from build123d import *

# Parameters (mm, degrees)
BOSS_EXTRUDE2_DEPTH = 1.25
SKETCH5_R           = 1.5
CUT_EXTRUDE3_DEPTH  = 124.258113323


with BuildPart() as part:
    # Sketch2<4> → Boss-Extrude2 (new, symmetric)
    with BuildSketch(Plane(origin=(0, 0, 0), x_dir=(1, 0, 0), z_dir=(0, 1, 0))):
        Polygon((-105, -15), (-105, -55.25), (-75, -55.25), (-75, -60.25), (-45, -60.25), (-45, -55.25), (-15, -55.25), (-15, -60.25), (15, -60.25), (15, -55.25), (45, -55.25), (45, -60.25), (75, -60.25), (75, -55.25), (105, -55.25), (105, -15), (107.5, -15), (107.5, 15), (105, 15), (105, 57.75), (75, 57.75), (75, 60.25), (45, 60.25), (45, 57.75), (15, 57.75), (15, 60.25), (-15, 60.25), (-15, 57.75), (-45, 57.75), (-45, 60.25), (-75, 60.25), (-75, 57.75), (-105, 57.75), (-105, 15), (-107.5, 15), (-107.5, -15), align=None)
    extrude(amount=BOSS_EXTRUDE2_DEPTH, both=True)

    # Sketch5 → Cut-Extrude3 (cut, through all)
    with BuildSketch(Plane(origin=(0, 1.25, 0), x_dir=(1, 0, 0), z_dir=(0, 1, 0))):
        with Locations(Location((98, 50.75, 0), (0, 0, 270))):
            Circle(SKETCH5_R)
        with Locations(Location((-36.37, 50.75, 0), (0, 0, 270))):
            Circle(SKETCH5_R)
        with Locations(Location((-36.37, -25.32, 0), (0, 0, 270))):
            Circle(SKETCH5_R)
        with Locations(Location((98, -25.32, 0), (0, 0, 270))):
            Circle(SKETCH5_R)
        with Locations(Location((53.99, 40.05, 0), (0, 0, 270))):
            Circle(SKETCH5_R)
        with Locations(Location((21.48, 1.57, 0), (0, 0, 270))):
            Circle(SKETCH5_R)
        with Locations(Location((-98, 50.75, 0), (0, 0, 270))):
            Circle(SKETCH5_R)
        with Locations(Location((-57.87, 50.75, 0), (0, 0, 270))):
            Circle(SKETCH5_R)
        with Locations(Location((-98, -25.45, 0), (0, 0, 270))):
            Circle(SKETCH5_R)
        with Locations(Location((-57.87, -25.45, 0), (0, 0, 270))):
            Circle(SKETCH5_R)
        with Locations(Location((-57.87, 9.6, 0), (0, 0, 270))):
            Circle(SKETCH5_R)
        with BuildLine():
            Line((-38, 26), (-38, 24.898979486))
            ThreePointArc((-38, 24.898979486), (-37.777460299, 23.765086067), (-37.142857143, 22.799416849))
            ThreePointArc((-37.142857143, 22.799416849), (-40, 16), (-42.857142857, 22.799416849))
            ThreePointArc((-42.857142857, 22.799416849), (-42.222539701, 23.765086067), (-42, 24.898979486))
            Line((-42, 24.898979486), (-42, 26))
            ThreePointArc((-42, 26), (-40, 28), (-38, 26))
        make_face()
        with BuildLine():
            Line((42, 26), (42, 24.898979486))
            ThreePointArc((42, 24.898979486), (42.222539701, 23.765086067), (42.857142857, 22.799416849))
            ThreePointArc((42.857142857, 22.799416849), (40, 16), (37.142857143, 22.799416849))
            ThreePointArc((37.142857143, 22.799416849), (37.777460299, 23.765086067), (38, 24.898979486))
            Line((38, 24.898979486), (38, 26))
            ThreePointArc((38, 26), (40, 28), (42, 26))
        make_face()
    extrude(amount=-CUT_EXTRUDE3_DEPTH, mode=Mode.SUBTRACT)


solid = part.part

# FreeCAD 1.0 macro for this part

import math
import FreeCAD as App
import Part
import Sketcher

V = App.Vector
Q = App.Units.Quantity

doc = App.newDocument("Part")
params = doc.addObject("Spreadsheet::Sheet", "Params")
for row, (alias, value) in enumerate([
    ("sketch1_width", "30 mm"),
    ("sketch1_height", "5 mm"),
    ("sketch1_width2", "2.5 mm"),
    ("pad1_length", "2.5 mm"),
    ("sketch2_diameter", "3 mm"),
    ("sketch2_radius", "2 mm"),
    ("sketch2_radius2", "3 mm"),
    ("sketch2_radius3", "4 mm"),
], start=1):
    params.set(f"A{row}", alias)
    params.set(f"B{row}", "=" + value)
    params.setAlias(f"B{row}", alias)

body = doc.addObject("PartDesign::Body", "Body")

# Sketch on XZ plane
sketch1 = body.newObject("Sketcher::SketchObject", "Sketch")
sketch1.AttachmentSupport = (doc.getObject("XZ_Plane"), [""])
sketch1.MapMode = "FlatFace"
sketch1.addGeometry(Part.LineSegment(V(-105, 15, 0), V(-105, 55.2, 0)), False)
sketch1.addGeometry(Part.LineSegment(V(-105, 55.2, 0), V(-75, 55.2, 0)), False)
sketch1.addGeometry(Part.LineSegment(V(-75, 55.2, 0), V(-75, 60.2, 0)), False)
sketch1.addGeometry(Part.LineSegment(V(-75, 60.2, 0), V(-45, 60.2, 0)), False)
sketch1.addGeometry(Part.LineSegment(V(-45, 60.2, 0), V(-45, 55.2, 0)), False)
sketch1.addGeometry(Part.LineSegment(V(-45, 55.2, 0), V(-15, 55.2, 0)), False)
sketch1.addGeometry(Part.LineSegment(V(-15, 55.2, 0), V(-15, 60.2, 0)), False)
sketch1.addGeometry(Part.LineSegment(V(-15, 60.2, 0), V(15, 60.2, 0)), False)
sketch1.addGeometry(Part.LineSegment(V(15, 60.2, 0), V(15, 55.2, 0)), False)
sketch1.addGeometry(Part.LineSegment(V(15, 55.2, 0), V(45, 55.2, 0)), False)
sketch1.addGeometry(Part.LineSegment(V(45, 55.2, 0), V(45, 60.2, 0)), False)
sketch1.addGeometry(Part.LineSegment(V(45, 60.2, 0), V(75, 60.2, 0)), False)
sketch1.addGeometry(Part.LineSegment(V(75, 60.2, 0), V(75, 55.2, 0)), False)
sketch1.addGeometry(Part.LineSegment(V(75, 55.2, 0), V(105, 55.2, 0)), False)
sketch1.addGeometry(Part.LineSegment(V(105, 55.2, 0), V(105, 15, 0)), False)
sketch1.addGeometry(Part.LineSegment(V(105, 15, 0), V(107.5, 15, 0)), False)
sketch1.addGeometry(Part.LineSegment(V(107.5, 15, 0), V(107.5, -15, 0)), False)
sketch1.addGeometry(Part.LineSegment(V(107.5, -15, 0), V(105, -15, 0)), False)
sketch1.addGeometry(Part.LineSegment(V(105, -15, 0), V(105, -57.8, 0)), False)
sketch1.addGeometry(Part.LineSegment(V(105, -57.8, 0), V(75, -57.8, 0)), False)
sketch1.addGeometry(Part.LineSegment(V(75, -57.8, 0), V(75, -60.2, 0)), False)
sketch1.addGeometry(Part.LineSegment(V(75, -60.2, 0), V(45, -60.2, 0)), False)
sketch1.addGeometry(Part.LineSegment(V(45, -60.2, 0), V(45, -57.8, 0)), False)
sketch1.addGeometry(Part.LineSegment(V(45, -57.8, 0), V(15, -57.8, 0)), False)
sketch1.addGeometry(Part.LineSegment(V(15, -57.8, 0), V(15, -60.2, 0)), False)
sketch1.addGeometry(Part.LineSegment(V(15, -60.2, 0), V(-15, -60.2, 0)), False)
sketch1.addGeometry(Part.LineSegment(V(-15, -60.2, 0), V(-15, -57.8, 0)), False)
sketch1.addGeometry(Part.LineSegment(V(-15, -57.8, 0), V(-45, -57.8, 0)), False)
sketch1.addGeometry(Part.LineSegment(V(-45, -57.8, 0), V(-45, -60.2, 0)), False)
sketch1.addGeometry(Part.LineSegment(V(-45, -60.2, 0), V(-75, -60.2, 0)), False)
sketch1.addGeometry(Part.LineSegment(V(-75, -60.2, 0), V(-75, -57.8, 0)), False)
sketch1.addGeometry(Part.LineSegment(V(-75, -57.8, 0), V(-105, -57.8, 0)), False)
sketch1.addGeometry(Part.LineSegment(V(-105, -57.8, 0), V(-105, -15, 0)), False)
sketch1.addGeometry(Part.LineSegment(V(-105, -15, 0), V(-107.5, -15, 0)), False)
sketch1.addGeometry(Part.LineSegment(V(-107.5, -15, 0), V(-107.5, 15, 0)), False)
sketch1.addGeometry(Part.LineSegment(V(-107.5, 15, 0), V(-105, 15, 0)), False)
sketch1.addConstraint(Sketcher.Constraint("Coincident", 0, 2, 1, 1))
sketch1.addConstraint(Sketcher.Constraint("Coincident", 1, 2, 2, 1))
sketch1.addConstraint(Sketcher.Constraint("Coincident", 2, 2, 3, 1))
sketch1.addConstraint(Sketcher.Constraint("Coincident", 3, 2, 4, 1))
sketch1.addConstraint(Sketcher.Constraint("Coincident", 4, 2, 5, 1))
sketch1.addConstraint(Sketcher.Constraint("Coincident", 5, 2, 6, 1))
sketch1.addConstraint(Sketcher.Constraint("Coincident", 6, 2, 7, 1))
sketch1.addConstraint(Sketcher.Constraint("Coincident", 7, 2, 8, 1))
sketch1.addConstraint(Sketcher.Constraint("Coincident", 8, 2, 9, 1))
sketch1.addConstraint(Sketcher.Constraint("Coincident", 9, 2, 10, 1))
sketch1.addConstraint(Sketcher.Constraint("Coincident", 10, 2, 11, 1))
sketch1.addConstraint(Sketcher.Constraint("Coincident", 11, 2, 12, 1))
sketch1.addConstraint(Sketcher.Constraint("Coincident", 12, 2, 13, 1))
sketch1.addConstraint(Sketcher.Constraint("Coincident", 13, 2, 14, 1))
sketch1.addConstraint(Sketcher.Constraint("Coincident", 14, 2, 15, 1))
sketch1.addConstraint(Sketcher.Constraint("Coincident", 15, 2, 16, 1))
sketch1.addConstraint(Sketcher.Constraint("Coincident", 16, 2, 17, 1))
sketch1.addConstraint(Sketcher.Constraint("Coincident", 17, 2, 18, 1))
sketch1.addConstraint(Sketcher.Constraint("Coincident", 18, 2, 19, 1))
sketch1.addConstraint(Sketcher.Constraint("Coincident", 19, 2, 20, 1))
sketch1.addConstraint(Sketcher.Constraint("Coincident", 20, 2, 21, 1))
sketch1.addConstraint(Sketcher.Constraint("Coincident", 21, 2, 22, 1))
sketch1.addConstraint(Sketcher.Constraint("Coincident", 22, 2, 23, 1))
sketch1.addConstraint(Sketcher.Constraint("Coincident", 23, 2, 24, 1))
sketch1.addConstraint(Sketcher.Constraint("Coincident", 24, 2, 25, 1))
sketch1.addConstraint(Sketcher.Constraint("Coincident", 25, 2, 26, 1))
sketch1.addConstraint(Sketcher.Constraint("Coincident", 26, 2, 27, 1))
sketch1.addConstraint(Sketcher.Constraint("Coincident", 27, 2, 28, 1))
sketch1.addConstraint(Sketcher.Constraint("Coincident", 28, 2, 29, 1))
sketch1.addConstraint(Sketcher.Constraint("Coincident", 29, 2, 30, 1))
sketch1.addConstraint(Sketcher.Constraint("Coincident", 30, 2, 31, 1))
sketch1.addConstraint(Sketcher.Constraint("Coincident", 31, 2, 32, 1))
sketch1.addConstraint(Sketcher.Constraint("Coincident", 32, 2, 33, 1))
sketch1.addConstraint(Sketcher.Constraint("Coincident", 33, 2, 34, 1))
sketch1.addConstraint(Sketcher.Constraint("Coincident", 34, 2, 35, 1))
sketch1.addConstraint(Sketcher.Constraint("Coincident", 35, 2, 0, 1))
sketch1.addConstraint(Sketcher.Constraint("Vertical", 0))
sketch1.addConstraint(Sketcher.Constraint("Horizontal", 1))
sketch1.addConstraint(Sketcher.Constraint("Vertical", 2))
sketch1.addConstraint(Sketcher.Constraint("Horizontal", 3))
sketch1.addConstraint(Sketcher.Constraint("Vertical", 4))
sketch1.addConstraint(Sketcher.Constraint("Horizontal", 5))
sketch1.addConstraint(Sketcher.Constraint("Vertical", 6))
sketch1.addConstraint(Sketcher.Constraint("Horizontal", 7))
sketch1.addConstraint(Sketcher.Constraint("Vertical", 8))
sketch1.addConstraint(Sketcher.Constraint("Horizontal", 9))
sketch1.addConstraint(Sketcher.Constraint("Vertical", 10))
sketch1.addConstraint(Sketcher.Constraint("Horizontal", 11))
sketch1.addConstraint(Sketcher.Constraint("Vertical", 12))
sketch1.addConstraint(Sketcher.Constraint("Horizontal", 13))
sketch1.addConstraint(Sketcher.Constraint("Vertical", 14))
sketch1.addConstraint(Sketcher.Constraint("Horizontal", 15))
sketch1.addConstraint(Sketcher.Constraint("Vertical", 16))
sketch1.addConstraint(Sketcher.Constraint("Horizontal", 17))
sketch1.addConstraint(Sketcher.Constraint("Vertical", 18))
sketch1.addConstraint(Sketcher.Constraint("Horizontal", 19))
sketch1.addConstraint(Sketcher.Constraint("Vertical", 20))
sketch1.addConstraint(Sketcher.Constraint("Horizontal", 21))
sketch1.addConstraint(Sketcher.Constraint("Vertical", 22))
sketch1.addConstraint(Sketcher.Constraint("Horizontal", 23))
sketch1.addConstraint(Sketcher.Constraint("Vertical", 24))
sketch1.addConstraint(Sketcher.Constraint("Horizontal", 25))
sketch1.addConstraint(Sketcher.Constraint("Vertical", 26))
sketch1.addConstraint(Sketcher.Constraint("Horizontal", 27))
sketch1.addConstraint(Sketcher.Constraint("Vertical", 28))
sketch1.addConstraint(Sketcher.Constraint("Horizontal", 29))
sketch1.addConstraint(Sketcher.Constraint("Vertical", 30))
sketch1.addConstraint(Sketcher.Constraint("Horizontal", 31))
sketch1.addConstraint(Sketcher.Constraint("Vertical", 32))
sketch1.addConstraint(Sketcher.Constraint("Horizontal", 33))
sketch1.addConstraint(Sketcher.Constraint("Vertical", 34))
sketch1.addConstraint(Sketcher.Constraint("Horizontal", 35))
sketch1.addConstraint(Sketcher.Constraint("Symmetric", 2, 2, 20, 2, -1, 1))
sketch1.addConstraint(Sketcher.Constraint("Symmetric", 6, 2, 24, 2, -1, 1))
sketch1.addConstraint(Sketcher.Constraint("Symmetric", 10, 2, 28, 2, -1, 1))
sketch1.addConstraint(Sketcher.Constraint("Symmetric", 14, 2, 32, 2, -1, 1))
sketch1.addConstraint(Sketcher.Constraint("Symmetric", 16, 2, 34, 2, -1, 1))
sketch1.addConstraint(Sketcher.Constraint("Symmetric", 5, 2, 8, 2, -2))
sketch1.addConstraint(Sketcher.Constraint("Symmetric", 3, 2, 10, 2, -2))
sketch1.addConstraint(Sketcher.Constraint("Symmetric", 1, 2, 12, 2, -2))
sketch1.addConstraint(Sketcher.Constraint("Symmetric", 23, 2, 26, 2, -2))
sketch1.addConstraint(Sketcher.Constraint("Symmetric", 19, 2, 30, 2, -2))
sketch1.addConstraint(Sketcher.Constraint("Symmetric", 17, 2, 32, 2, -2))
sketch1.addConstraint(Sketcher.Constraint("Horizontal", 1, 2, 4, 2))
sketch1.addConstraint(Sketcher.Constraint("Horizontal", 3, 2, 6, 2))
sketch1.addConstraint(Sketcher.Constraint("Horizontal", 19, 2, 22, 2))
sketch1.addConstraint(Sketcher.Constraint("Vertical", 10, 2, 21, 2))
sketch1.addConstraint(Sketcher.Constraint("Vertical", 0, 2, 31, 2))
sketch1.addConstraint(Sketcher.Constraint("Equal", 1, 3))
sketch1.addConstraint(Sketcher.Constraint("Equal", 3, 5))
sketch1.addConstraint(Sketcher.Constraint("Equal", 5, 7))
sketch1.addConstraint(Sketcher.Constraint("Equal", 31, 16))
sketch1.addConstraint(Sketcher.Constraint("Equal", 35, 20))
sketch1.addConstraint(Sketcher.Constraint("DistanceX", 1, 1, 1, 2, Q("30 mm")))
sketch1.addConstraint(Sketcher.Constraint("DistanceY", 2, 1, 2, 2, Q("5 mm")))
sketch1.addConstraint(Sketcher.Constraint("DistanceX", 15, 1, 15, 2, Q("2.5 mm")))
sketch1.addConstraint(Sketcher.Constraint("DistanceY", 18, 2, 13, 2, Q("113 mm")))
sketch1.setExpression("Constraints[93]", "Params.sketch1_width")
sketch1.setExpression("Constraints[94]", "Params.sketch1_height")
sketch1.setExpression("Constraints[95]", "Params.sketch1_width2")
pad1 = body.newObject("PartDesign::Pad", "Pad")
pad1.Profile = sketch1
pad1.setExpression("Length", "Params.pad1_length")
pad1.Midplane = True

# Sketch on XZ plane
sketch2 = body.newObject("Sketcher::SketchObject", "Sketch001")
sketch2.AttachmentSupport = (doc.getObject("XZ_Plane"), [""])
sketch2.MapMode = "FlatFace"
sketch2.AttachmentOffset = App.Placement(V(0, 0, -1.25), App.Rotation())
sketch2.addGeometry(Part.Circle(V(98, -50.8, 0), V(0, 0, 1), 1.5), False)
sketch2.addGeometry(Part.Circle(V(-36.4, -50.8, 0), V(0, 0, 1), 1.5), False)
sketch2.addGeometry(Part.Circle(V(-36.4, 25.3, 0), V(0, 0, 1), 1.5), False)
sketch2.addGeometry(Part.Circle(V(98, 25.3, 0), V(0, 0, 1), 1.5), False)
sketch2.addGeometry(Part.Circle(V(54, -40, 0), V(0, 0, 1), 1.5), False)
sketch2.addGeometry(Part.Circle(V(21.5, -1.6, 0), V(0, 0, 1), 1.5), False)
sketch2.addGeometry(Part.Circle(V(-98, -50.8, 0), V(0, 0, 1), 1.5), False)
sketch2.addGeometry(Part.Circle(V(-57.9, -50.8, 0), V(0, 0, 1), 1.5), False)
sketch2.addGeometry(Part.Circle(V(-98, 25.4, 0), V(0, 0, 1), 1.5), False)
sketch2.addGeometry(Part.Circle(V(-57.9, 25.4, 0), V(0, 0, 1), 1.5), False)
sketch2.addGeometry(Part.Circle(V(-57.9, -9.6, 0), V(0, 0, 1), 1.5), False)
sketch2.addGeometry(Part.LineSegment(V(-38, -24.9, 0), V(-38, -26, 0)), False)
sketch2.addGeometry(Part.ArcOfCircle(Part.Circle(V(-40, -26, 0), V(0, 0, 1), 2), math.radians(180), math.radians(360)), False)
sketch2.addGeometry(Part.LineSegment(V(-42, -26, 0), V(-42, -24.9, 0)), False)
sketch2.addGeometry(Part.ArcOfCircle(Part.Circle(V(-45, -24.9, 0), V(0, 0, 1), 3), math.radians(0), math.radians(44)), False)
sketch2.addGeometry(Part.ArcOfCircle(Part.Circle(V(-40, -20, 0), V(0, 0, 1), 4), math.radians(-44), math.radians(224)), False)
sketch2.addGeometry(Part.ArcOfCircle(Part.Circle(V(-35, -24.9, 0), V(0, 0, 1), 3), math.radians(136), math.radians(180)), False)
sketch2.addGeometry(Part.LineSegment(V(42, -24.9, 0), V(42, -26, 0)), False)
sketch2.addGeometry(Part.ArcOfCircle(Part.Circle(V(40, -26, 0), V(0, 0, 1), 2), math.radians(180), math.radians(360)), False)
sketch2.addGeometry(Part.LineSegment(V(38, -26, 0), V(38, -24.9, 0)), False)
sketch2.addGeometry(Part.ArcOfCircle(Part.Circle(V(35, -24.9, 0), V(0, 0, 1), 3), math.radians(0), math.radians(44)), False)
sketch2.addGeometry(Part.ArcOfCircle(Part.Circle(V(40, -20, 0), V(0, 0, 1), 4), math.radians(-44), math.radians(224)), False)
sketch2.addGeometry(Part.ArcOfCircle(Part.Circle(V(45, -24.9, 0), V(0, 0, 1), 3), math.radians(136), math.radians(180)), False)
sketch2.addConstraint(Sketcher.Constraint("Tangent", 11, 2, 12, 2))
sketch2.addConstraint(Sketcher.Constraint("Tangent", 12, 1, 13, 1))
sketch2.addConstraint(Sketcher.Constraint("Tangent", 13, 2, 14, 1))
sketch2.addConstraint(Sketcher.Constraint("Tangent", 14, 2, 15, 2))
sketch2.addConstraint(Sketcher.Constraint("Tangent", 15, 1, 16, 1))
sketch2.addConstraint(Sketcher.Constraint("Tangent", 16, 2, 11, 1))
sketch2.addConstraint(Sketcher.Constraint("Tangent", 17, 2, 18, 2))
sketch2.addConstraint(Sketcher.Constraint("Tangent", 18, 1, 19, 1))
sketch2.addConstraint(Sketcher.Constraint("Tangent", 19, 2, 20, 1))
sketch2.addConstraint(Sketcher.Constraint("Tangent", 20, 2, 21, 2))
sketch2.addConstraint(Sketcher.Constraint("Tangent", 21, 1, 22, 1))
sketch2.addConstraint(Sketcher.Constraint("Tangent", 22, 2, 17, 1))
sketch2.addConstraint(Sketcher.Constraint("Vertical", 11))
sketch2.addConstraint(Sketcher.Constraint("Vertical", 13))
sketch2.addConstraint(Sketcher.Constraint("Vertical", 17))
sketch2.addConstraint(Sketcher.Constraint("Vertical", 19))
sketch2.addConstraint(Sketcher.Constraint("Equal", 0, 1))
sketch2.addConstraint(Sketcher.Constraint("Equal", 1, 2))
sketch2.addConstraint(Sketcher.Constraint("Equal", 2, 3))
sketch2.addConstraint(Sketcher.Constraint("Equal", 3, 4))
sketch2.addConstraint(Sketcher.Constraint("Equal", 4, 5))
sketch2.addConstraint(Sketcher.Constraint("Equal", 5, 6))
sketch2.addConstraint(Sketcher.Constraint("Equal", 6, 7))
sketch2.addConstraint(Sketcher.Constraint("Equal", 7, 8))
sketch2.addConstraint(Sketcher.Constraint("Equal", 8, 9))
sketch2.addConstraint(Sketcher.Constraint("Equal", 9, 10))
sketch2.addConstraint(Sketcher.Constraint("Equal", 14, 16))
sketch2.addConstraint(Sketcher.Constraint("Equal", 12, 18))
sketch2.addConstraint(Sketcher.Constraint("Equal", 16, 20))
sketch2.addConstraint(Sketcher.Constraint("Equal", 15, 21))
sketch2.addConstraint(Sketcher.Constraint("Equal", 20, 22))
sketch2.addConstraint(Sketcher.Constraint("Symmetric", 0, 3, 6, 3, -2))
sketch2.addConstraint(Sketcher.Constraint("Symmetric", 12, 3, 18, 3, -2))
sketch2.addConstraint(Sketcher.Constraint("Symmetric", 15, 3, 21, 3, -2))
sketch2.addConstraint(Sketcher.Constraint("Horizontal", 0, 3, 1, 3))
sketch2.addConstraint(Sketcher.Constraint("Horizontal", 2, 3, 3, 3))
sketch2.addConstraint(Sketcher.Constraint("Horizontal", 6, 3, 7, 3))
sketch2.addConstraint(Sketcher.Constraint("Horizontal", 8, 3, 9, 3))
sketch2.addConstraint(Sketcher.Constraint("Horizontal", 14, 3, 16, 3))
sketch2.addConstraint(Sketcher.Constraint("Vertical", 1, 3, 2, 3))
sketch2.addConstraint(Sketcher.Constraint("Vertical", 0, 3, 3, 3))
sketch2.addConstraint(Sketcher.Constraint("Vertical", 6, 3, 8, 3))
sketch2.addConstraint(Sketcher.Constraint("Vertical", 7, 3, 9, 3))
sketch2.addConstraint(Sketcher.Constraint("Vertical", 9, 3, 10, 3))
sketch2.addConstraint(Sketcher.Constraint("Diameter", 0, Q("3 mm")))
sketch2.addConstraint(Sketcher.Constraint("Radius", 12, Q("2 mm")))
sketch2.addConstraint(Sketcher.Constraint("Radius", 14, Q("3 mm")))
sketch2.addConstraint(Sketcher.Constraint("Radius", 15, Q("4 mm")))
sketch2.addConstraint(Sketcher.Constraint("DistanceX", -1, 1, 0, 3, Q("98 mm")))
sketch2.addConstraint(Sketcher.Constraint("DistanceX", 12, 3, -1, 1, Q("40 mm")))
sketch2.addConstraint(Sketcher.Constraint("DistanceY", 12, 3, -1, 1, Q("26 mm")))
sketch2.addConstraint(Sketcher.Constraint("DistanceY", 15, 3, -1, 1, Q("20 mm")))
sketch2.addConstraint(Sketcher.Constraint("DistanceY", 10, 3, -1, 1, Q("9.6 mm")))
sketch2.addConstraint(Sketcher.Constraint("DistanceY", 0, 3, 4, 3, Q("10.7 mm")))
sketch2.addConstraint(Sketcher.Constraint("DistanceX", 7, 3, 1, 3, Q("21.5 mm")))
sketch2.addConstraint(Sketcher.Constraint("DistanceY", 6, 3, 8, 3, Q("76.2 mm")))
sketch2.addConstraint(Sketcher.Constraint("DistanceY", 0, 3, -1, 1, Q("50.75 mm")))
sketch2.addConstraint(Sketcher.Constraint("DistanceX", 1, 3, -1, 1, Q("36.37 mm")))
sketch2.addConstraint(Sketcher.Constraint("DistanceY", -1, 1, 2, 3, Q("25.32 mm")))
sketch2.addConstraint(Sketcher.Constraint("DistanceX", -1, 1, 4, 3, Q("53.99 mm")))
sketch2.addConstraint(Sketcher.Constraint("DistanceX", -1, 1, 5, 3, Q("21.48 mm")))
sketch2.addConstraint(Sketcher.Constraint("DistanceY", 5, 3, -1, 1, Q("1.57 mm")))
sketch2.setExpression("Constraints[44]", "Params.sketch2_diameter")
sketch2.setExpression("Constraints[45]", "Params.sketch2_radius")
sketch2.setExpression("Constraints[46]", "Params.sketch2_radius2")
sketch2.setExpression("Constraints[47]", "Params.sketch2_radius3")
pocket1 = body.newObject("PartDesign::Pocket", "Pocket")
pocket1.Profile = sketch2
pocket1.Type = "ThroughAll"
pocket1.Reversed = True

doc.recompute()
